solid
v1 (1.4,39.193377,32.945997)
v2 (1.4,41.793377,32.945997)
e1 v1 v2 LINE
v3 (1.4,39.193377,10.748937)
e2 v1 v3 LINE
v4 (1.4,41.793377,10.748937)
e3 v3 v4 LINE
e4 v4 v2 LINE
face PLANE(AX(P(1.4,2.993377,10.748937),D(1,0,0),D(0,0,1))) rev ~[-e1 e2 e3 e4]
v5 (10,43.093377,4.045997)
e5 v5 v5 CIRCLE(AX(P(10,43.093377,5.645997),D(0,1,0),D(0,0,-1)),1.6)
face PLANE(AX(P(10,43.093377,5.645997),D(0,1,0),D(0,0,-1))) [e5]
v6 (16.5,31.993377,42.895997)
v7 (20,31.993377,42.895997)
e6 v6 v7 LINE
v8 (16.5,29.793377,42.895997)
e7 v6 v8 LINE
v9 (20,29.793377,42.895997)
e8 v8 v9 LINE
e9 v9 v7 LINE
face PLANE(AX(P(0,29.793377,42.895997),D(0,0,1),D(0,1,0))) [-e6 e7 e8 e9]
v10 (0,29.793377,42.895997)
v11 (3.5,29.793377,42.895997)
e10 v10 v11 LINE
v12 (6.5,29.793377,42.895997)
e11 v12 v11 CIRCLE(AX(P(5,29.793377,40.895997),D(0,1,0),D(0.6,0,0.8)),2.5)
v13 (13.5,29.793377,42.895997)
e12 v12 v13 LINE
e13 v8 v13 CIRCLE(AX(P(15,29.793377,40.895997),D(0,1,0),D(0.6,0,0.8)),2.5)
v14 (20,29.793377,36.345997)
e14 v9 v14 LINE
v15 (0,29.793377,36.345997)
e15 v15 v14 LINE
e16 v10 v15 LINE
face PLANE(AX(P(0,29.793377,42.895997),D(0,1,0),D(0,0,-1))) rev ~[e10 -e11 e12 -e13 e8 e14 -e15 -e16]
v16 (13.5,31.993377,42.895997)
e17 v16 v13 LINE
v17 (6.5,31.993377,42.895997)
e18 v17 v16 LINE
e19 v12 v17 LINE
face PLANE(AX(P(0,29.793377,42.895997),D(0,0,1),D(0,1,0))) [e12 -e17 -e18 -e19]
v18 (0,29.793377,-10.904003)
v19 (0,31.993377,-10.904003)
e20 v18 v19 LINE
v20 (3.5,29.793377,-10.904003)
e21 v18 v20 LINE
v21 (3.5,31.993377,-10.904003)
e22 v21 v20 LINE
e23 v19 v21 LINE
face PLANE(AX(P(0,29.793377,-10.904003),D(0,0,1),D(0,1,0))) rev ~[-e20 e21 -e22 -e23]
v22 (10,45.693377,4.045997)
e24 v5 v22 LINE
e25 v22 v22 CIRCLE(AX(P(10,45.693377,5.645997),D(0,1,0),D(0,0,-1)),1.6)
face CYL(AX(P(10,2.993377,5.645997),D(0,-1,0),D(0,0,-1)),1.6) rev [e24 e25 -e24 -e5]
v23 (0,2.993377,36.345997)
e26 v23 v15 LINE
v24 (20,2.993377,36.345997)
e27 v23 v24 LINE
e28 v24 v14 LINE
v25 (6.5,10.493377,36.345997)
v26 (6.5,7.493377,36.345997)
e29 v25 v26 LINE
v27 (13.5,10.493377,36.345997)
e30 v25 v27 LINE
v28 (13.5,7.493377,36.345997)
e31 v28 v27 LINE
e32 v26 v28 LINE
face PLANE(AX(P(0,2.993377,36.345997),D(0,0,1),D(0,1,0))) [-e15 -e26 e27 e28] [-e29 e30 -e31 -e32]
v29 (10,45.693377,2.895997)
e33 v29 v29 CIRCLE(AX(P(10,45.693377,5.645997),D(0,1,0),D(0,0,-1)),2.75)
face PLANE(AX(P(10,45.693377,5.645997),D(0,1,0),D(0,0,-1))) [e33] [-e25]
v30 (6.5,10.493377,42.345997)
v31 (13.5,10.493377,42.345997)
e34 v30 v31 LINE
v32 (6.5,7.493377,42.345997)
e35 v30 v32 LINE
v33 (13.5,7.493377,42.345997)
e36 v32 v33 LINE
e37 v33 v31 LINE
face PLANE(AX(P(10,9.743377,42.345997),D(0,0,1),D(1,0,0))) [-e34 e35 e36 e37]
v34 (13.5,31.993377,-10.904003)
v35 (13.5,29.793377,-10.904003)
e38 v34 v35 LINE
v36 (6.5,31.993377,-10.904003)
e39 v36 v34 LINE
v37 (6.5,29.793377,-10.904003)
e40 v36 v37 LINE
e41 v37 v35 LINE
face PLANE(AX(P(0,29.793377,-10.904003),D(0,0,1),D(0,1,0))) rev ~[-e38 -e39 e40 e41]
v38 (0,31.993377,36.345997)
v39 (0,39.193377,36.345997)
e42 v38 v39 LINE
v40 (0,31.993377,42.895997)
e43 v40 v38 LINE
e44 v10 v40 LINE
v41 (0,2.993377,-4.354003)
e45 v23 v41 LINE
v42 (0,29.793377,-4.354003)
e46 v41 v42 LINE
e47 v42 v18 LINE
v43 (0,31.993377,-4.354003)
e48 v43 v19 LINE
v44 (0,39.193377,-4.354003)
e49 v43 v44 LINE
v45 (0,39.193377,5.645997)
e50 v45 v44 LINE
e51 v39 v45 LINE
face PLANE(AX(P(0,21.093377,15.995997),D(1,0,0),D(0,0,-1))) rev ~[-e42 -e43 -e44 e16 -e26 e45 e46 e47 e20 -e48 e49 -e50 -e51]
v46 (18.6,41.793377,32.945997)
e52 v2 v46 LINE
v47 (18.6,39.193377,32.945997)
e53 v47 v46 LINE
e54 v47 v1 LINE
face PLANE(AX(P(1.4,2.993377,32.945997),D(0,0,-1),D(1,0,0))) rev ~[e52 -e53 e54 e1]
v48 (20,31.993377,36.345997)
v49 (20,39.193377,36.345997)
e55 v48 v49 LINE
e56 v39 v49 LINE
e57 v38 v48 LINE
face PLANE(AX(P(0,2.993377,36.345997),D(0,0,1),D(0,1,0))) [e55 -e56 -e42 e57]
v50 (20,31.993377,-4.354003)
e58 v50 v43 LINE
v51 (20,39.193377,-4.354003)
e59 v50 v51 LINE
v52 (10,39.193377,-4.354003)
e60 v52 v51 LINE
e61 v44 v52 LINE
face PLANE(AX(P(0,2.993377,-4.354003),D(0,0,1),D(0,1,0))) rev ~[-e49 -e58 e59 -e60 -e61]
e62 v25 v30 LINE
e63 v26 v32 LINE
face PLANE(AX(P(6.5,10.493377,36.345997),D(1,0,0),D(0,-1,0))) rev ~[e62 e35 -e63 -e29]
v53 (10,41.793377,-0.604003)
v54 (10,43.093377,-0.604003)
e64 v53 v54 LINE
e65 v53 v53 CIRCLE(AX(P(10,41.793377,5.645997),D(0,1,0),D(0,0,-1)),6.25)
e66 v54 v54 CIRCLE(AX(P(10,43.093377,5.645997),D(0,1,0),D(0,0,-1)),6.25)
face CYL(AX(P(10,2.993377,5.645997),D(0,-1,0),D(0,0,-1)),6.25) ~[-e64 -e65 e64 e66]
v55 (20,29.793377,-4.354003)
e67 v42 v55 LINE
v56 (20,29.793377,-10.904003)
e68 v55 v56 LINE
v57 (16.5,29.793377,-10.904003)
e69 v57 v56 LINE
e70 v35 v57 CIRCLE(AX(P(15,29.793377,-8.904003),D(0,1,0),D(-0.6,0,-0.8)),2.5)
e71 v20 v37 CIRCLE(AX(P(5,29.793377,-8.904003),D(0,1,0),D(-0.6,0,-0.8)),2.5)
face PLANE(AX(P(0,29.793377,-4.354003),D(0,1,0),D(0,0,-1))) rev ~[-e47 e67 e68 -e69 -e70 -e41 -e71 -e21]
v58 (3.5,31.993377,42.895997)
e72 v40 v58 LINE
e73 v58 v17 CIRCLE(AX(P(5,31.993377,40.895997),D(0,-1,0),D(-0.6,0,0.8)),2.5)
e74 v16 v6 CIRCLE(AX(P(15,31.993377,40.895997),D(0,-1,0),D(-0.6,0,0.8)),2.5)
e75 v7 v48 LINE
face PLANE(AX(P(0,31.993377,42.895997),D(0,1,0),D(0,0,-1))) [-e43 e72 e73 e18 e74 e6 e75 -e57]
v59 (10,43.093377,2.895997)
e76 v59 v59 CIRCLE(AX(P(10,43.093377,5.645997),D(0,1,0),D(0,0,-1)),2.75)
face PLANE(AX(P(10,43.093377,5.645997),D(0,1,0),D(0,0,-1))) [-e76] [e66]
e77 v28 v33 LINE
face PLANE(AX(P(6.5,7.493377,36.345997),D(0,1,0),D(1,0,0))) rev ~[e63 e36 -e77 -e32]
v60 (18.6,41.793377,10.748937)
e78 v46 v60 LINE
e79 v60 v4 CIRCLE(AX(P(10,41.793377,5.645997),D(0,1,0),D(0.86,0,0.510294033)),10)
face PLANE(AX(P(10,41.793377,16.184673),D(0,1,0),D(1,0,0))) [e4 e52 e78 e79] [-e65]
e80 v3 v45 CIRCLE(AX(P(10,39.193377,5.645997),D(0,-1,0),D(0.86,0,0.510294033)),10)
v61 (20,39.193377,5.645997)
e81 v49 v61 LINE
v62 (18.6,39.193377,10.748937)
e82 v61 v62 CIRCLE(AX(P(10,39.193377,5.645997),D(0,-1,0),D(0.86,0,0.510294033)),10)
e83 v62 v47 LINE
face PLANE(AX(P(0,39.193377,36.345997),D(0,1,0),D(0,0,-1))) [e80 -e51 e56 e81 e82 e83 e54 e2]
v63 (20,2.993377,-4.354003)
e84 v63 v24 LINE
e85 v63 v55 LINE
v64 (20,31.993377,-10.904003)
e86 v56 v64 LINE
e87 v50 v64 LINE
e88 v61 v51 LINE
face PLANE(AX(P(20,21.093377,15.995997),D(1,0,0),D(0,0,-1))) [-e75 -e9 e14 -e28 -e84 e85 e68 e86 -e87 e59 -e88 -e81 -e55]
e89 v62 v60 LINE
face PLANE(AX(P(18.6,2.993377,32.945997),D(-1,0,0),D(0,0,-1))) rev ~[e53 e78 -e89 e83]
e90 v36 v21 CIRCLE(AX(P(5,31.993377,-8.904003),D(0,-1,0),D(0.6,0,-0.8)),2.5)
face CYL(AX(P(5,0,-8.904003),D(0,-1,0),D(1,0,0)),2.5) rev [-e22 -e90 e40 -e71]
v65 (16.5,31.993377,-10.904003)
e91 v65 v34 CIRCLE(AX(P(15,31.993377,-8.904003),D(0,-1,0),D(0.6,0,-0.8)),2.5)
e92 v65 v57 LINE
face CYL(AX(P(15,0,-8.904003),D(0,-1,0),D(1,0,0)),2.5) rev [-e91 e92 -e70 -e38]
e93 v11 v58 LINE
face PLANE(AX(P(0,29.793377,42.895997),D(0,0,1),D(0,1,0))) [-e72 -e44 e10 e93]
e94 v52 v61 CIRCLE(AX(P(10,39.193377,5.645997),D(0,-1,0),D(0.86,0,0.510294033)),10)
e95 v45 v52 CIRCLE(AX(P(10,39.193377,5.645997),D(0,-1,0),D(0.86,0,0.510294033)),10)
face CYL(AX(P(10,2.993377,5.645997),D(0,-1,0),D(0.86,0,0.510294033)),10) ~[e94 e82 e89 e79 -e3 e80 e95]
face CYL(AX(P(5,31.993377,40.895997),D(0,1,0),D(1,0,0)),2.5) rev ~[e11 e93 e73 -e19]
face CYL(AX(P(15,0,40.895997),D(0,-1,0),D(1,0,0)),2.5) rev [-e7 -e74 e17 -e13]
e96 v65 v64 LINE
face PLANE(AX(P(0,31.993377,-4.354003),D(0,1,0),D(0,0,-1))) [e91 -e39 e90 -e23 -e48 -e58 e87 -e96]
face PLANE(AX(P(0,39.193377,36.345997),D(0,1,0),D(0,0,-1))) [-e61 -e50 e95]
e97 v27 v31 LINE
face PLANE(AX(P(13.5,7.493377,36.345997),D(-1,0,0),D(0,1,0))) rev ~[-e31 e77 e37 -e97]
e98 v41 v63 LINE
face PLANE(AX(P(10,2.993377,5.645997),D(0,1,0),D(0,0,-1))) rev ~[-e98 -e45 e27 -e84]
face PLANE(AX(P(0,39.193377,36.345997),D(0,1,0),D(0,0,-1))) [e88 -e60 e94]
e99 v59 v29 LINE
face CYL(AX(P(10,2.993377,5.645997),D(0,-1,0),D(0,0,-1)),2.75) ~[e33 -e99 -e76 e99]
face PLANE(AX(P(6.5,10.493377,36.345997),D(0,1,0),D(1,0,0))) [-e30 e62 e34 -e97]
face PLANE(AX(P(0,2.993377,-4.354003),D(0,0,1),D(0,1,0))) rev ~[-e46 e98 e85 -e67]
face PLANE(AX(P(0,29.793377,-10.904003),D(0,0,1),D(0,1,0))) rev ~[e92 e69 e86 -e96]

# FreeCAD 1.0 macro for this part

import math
import FreeCAD as App
import Part
import Sketcher


def add_polygon(sketch, points):
    """Adds a closed chain of lines whose ends are joined by coincident constraints."""
    first, n = sketch.GeometryCount, len(points)
    for a, b in zip(points, points[1:] + points[:1]):
        sketch.addGeometry(Part.LineSegment(App.Vector(*a, 0), App.Vector(*b, 0)), False)
    for i in range(n):
        sketch.addConstraint(Sketcher.Constraint("Coincident", first + i, 2, first + (i + 1) % n, 1))

doc = App.newDocument("Part")
params = doc.addObject("Spreadsheet::Sheet", "Params")
for row, (alias, value) in enumerate([
    ("sketch1_width", "36.2 mm"),
    ("sketch1_height", "40.7 mm"),
    ("pad1_length", "20 mm"),
    ("sketch2_width", "2.2 mm"),
    ("sketch2_height", "6.55 mm"),
    ("pad2_length", "20 mm"),
    ("sketch3_radius", "10 mm"),
    ("sketch3_diameter", "12.5 mm"),
    ("sketch3_width", "17.2 mm"),
    ("pad3_length", "38.8 mm"),
    ("sketch4_diameter", "12.5 mm"),
    ("sketch4_diameter2", "5.5 mm"),
    ("sketch4_diameter3", "3.2 mm"),
    ("pad4_length", "40.1 mm"),
    ("sketch5_diameter", "5.5 mm"),
    ("sketch5_diameter2", "3.2 mm"),
    ("pad5_length", "42.7 mm"),
    ("sketch6_diameter", "5 mm"),
    ("pocket1_length", "43.9 mm"),
    ("sketch7_diameter", "5 mm"),
    ("pocket2_length", "43.9 mm"),
    ("sketch8_diameter", "5 mm"),
    ("pocket3_length", "43.9 mm"),
    ("sketch9_width", "7 mm"),
    ("sketch9_height", "3 mm"),
    ("pad6_length", "6 mm"),
], start=1):
    params.set(f"A{row}", alias)
    params.set(f"B{row}", "=" + value)
    params.setAlias(f"B{row}", alias)

body = doc.addObject("PartDesign::Body", "Body")

sketch1 = body.newObject("Sketcher::SketchObject", "Sketch")
sketch1.AttachmentSupport = (doc.getObject("YZ_Plane"), [""])
sketch1.MapMode = "FlatFace"
add_polygon(sketch1, [(39, 36), (3, 36), (3, -4), (39, -4)])
sketch1.addConstraint([
    Sketcher.Constraint("Horizontal", 0),
    Sketcher.Constraint("Vertical", 1),
    Sketcher.Constraint("Horizontal", 2),
    Sketcher.Constraint("Vertical", 3),
    Sketcher.Constraint("DistanceX", 0, 2, 0, 1, 36.2),
    Sketcher.Constraint("DistanceY", 1, 2, 1, 1, 40.7),
    Sketcher.Constraint("DistanceX", -1, 1, 0, 2, 2.993377),
    Sketcher.Constraint("DistanceY", -1, 1, 0, 2, 36.345997),
])
sketch1.setExpression("Constraints[8]", "Params.sketch1_width")
sketch1.setExpression("Constraints[9]", "Params.sketch1_height")
pad1 = body.newObject("PartDesign::Pad", "Pad")
pad1.Profile = sketch1
pad1.setExpression("Length", "Params.pad1_length")

sketch2 = body.newObject("Sketcher::SketchObject", "Sketch001")
sketch2.AttachmentSupport = (doc.getObject("YZ_Plane"), [""])
sketch2.MapMode = "FlatFace"
add_polygon(sketch2, [(32, 42.9), (29.8, 42.9), (29.8, 36.3), (32, 36.3)])
add_polygon(sketch2, [(32, -4.4), (29.8, -4.4), (29.8, -10.9), (32, -10.9)])
sketch2.addConstraint([
    Sketcher.Constraint("Horizontal", 0),
    Sketcher.Constraint("Vertical", 1),
    Sketcher.Constraint("Horizontal", 2),
    Sketcher.Constraint("Vertical", 3),
    Sketcher.Constraint("Horizontal", 4),
    Sketcher.Constraint("Vertical", 5),
    Sketcher.Constraint("Horizontal", 6),
    Sketcher.Constraint("Vertical", 7),
    Sketcher.Constraint("Vertical", 1, 2, 4, 2),
    Sketcher.Constraint("Vertical", 3, 2, 6, 2),
    Sketcher.Constraint("Equal", 3, 5),
    Sketcher.Constraint("DistanceX", 0, 2, 0, 1, 2.2),
    Sketcher.Constraint("DistanceY", 1, 2, 1, 1, 6.55),
    Sketcher.Constraint("DistanceY", 4, 2, 1, 2, 40.7),
    Sketcher.Constraint("DistanceX", -1, 1, 0, 2, 29.793377),
    Sketcher.Constraint("DistanceY", -1, 1, 0, 2, 42.895997),
])
sketch2.setExpression("Constraints[19]", "Params.sketch2_width")
sketch2.setExpression("Constraints[20]", "Params.sketch2_height")
pad2 = body.newObject("PartDesign::Pad", "Pad001")
pad2.Profile = sketch2
pad2.setExpression("Length", "Params.pad2_length")

sketch3 = body.newObject("Sketcher::SketchObject", "Sketch002")
sketch3.AttachmentSupport = (doc.getObject("XZ_Plane"), [""])
sketch3.MapMode = "FlatFace"
sketch3.AttachmentOffset = App.Placement(App.Vector(0, 0, -2.993377), App.Rotation())
sketch3.addGeometry([
    Part.LineSegment(App.Vector(1, 11, 0), App.Vector(1, 33, 0)),
    Part.LineSegment(App.Vector(1, 33, 0), App.Vector(19, 33, 0)),
    Part.LineSegment(App.Vector(19, 33, 0), App.Vector(19, 11, 0)),
    Part.ArcOfCircle(Part.Circle(App.Vector(10, 6, 0), App.Vector(0, 0, 1), 10), math.radians(149), math.radians(391)),
    Part.Circle(App.Vector(10, 6, 0), App.Vector(0, 0, 1), 6),
], False)
sketch3.addConstraint([
    Sketcher.Constraint("Coincident", 0, 2, 1, 1),
    Sketcher.Constraint("Coincident", 1, 2, 2, 1),
    Sketcher.Constraint("Coincident", 2, 2, 3, 2),
    Sketcher.Constraint("Coincident", 3, 1, 0, 1),
    Sketcher.Constraint("Vertical", 0),
    Sketcher.Constraint("Horizontal", 1),
    Sketcher.Constraint("Vertical", 2),
    Sketcher.Constraint("Coincident", 4, 3, 3, 3),
    Sketcher.Constraint("Horizontal", 2, 2, 3, 1),
    Sketcher.Constraint("Radius", 3, 10.0),
    Sketcher.Constraint("Diameter", 4, 12.5),
    Sketcher.Constraint("DistanceX", 1, 1, 1, 2, 17.2),
    Sketcher.Constraint("DistanceX", -1, 1, 3, 3, 10.0),
    Sketcher.Constraint("DistanceY", 3, 3, 0, 2, 27.3),
    Sketcher.Constraint("DistanceY", -1, 1, 3, 3, 5.645997),
])
sketch3.setExpression("Constraints[9]", "Params.sketch3_radius")
sketch3.setExpression("Constraints[10]", "Params.sketch3_diameter")
sketch3.setExpression("Constraints[11]", "Params.sketch3_width")
pad3 = body.newObject("PartDesign::Pad", "Pad002")
pad3.Profile = sketch3
pad3.setExpression("Length", "Params.pad3_length")
pad3.Reversed = True

sketch4 = body.newObject("Sketcher::SketchObject", "Sketch003")
sketch4.AttachmentSupport = (doc.getObject("XZ_Plane"), [""])
sketch4.MapMode = "FlatFace"
sketch4.AttachmentOffset = App.Placement(App.Vector(0, 0, -2.993377), App.Rotation())
sketch4.addGeometry([
    Part.Circle(App.Vector(10, 5.6, 0), App.Vector(0, 0, 1), 6.2),
    Part.Circle(App.Vector(10, 5.6, 0), App.Vector(0, 0, 1), 2.8),
    Part.Circle(App.Vector(10, 5.6, 0), App.Vector(0, 0, 1), 1.6),
], False)
sketch4.addConstraint([
    Sketcher.Constraint("Coincident", 1, 3, 0, 3),
    Sketcher.Constraint("Coincident", 2, 3, 0, 3),
    Sketcher.Constraint("Diameter", 0, 12.5),
    Sketcher.Constraint("Diameter", 1, 5.5),
    Sketcher.Constraint("Diameter", 2, 3.2),
    Sketcher.Constraint("DistanceX", -1, 1, 0, 3, 10.0),
    Sketcher.Constraint("DistanceY", -1, 1, 0, 3, 5.645997),
])
sketch4.setExpression("Constraints[2]", "Params.sketch4_diameter")
sketch4.setExpression("Constraints[3]", "Params.sketch4_diameter2")
sketch4.setExpression("Constraints[4]", "Params.sketch4_diameter3")
pad4 = body.newObject("PartDesign::Pad", "Pad003")
pad4.Profile = sketch4
pad4.setExpression("Length", "Params.pad4_length")
pad4.Reversed = True

sketch5 = body.newObject("Sketcher::SketchObject", "Sketch004")
sketch5.AttachmentSupport = (doc.getObject("XZ_Plane"), [""])
sketch5.MapMode = "FlatFace"
sketch5.AttachmentOffset = App.Placement(App.Vector(0, 0, -2.993377), App.Rotation())
sketch5.addGeometry([
    Part.Circle(App.Vector(10, 5.6, 0), App.Vector(0, 0, 1), 2.8),
    Part.Circle(App.Vector(10, 5.6, 0), App.Vector(0, 0, 1), 1.6),
], False)
sketch5.addConstraint([
    Sketcher.Constraint("Coincident", 1, 3, 0, 3),
    Sketcher.Constraint("Diameter", 0, 5.5),
    Sketcher.Constraint("Diameter", 1, 3.2),
    Sketcher.Constraint("DistanceX", -1, 1, 0, 3, 10.0),
    Sketcher.Constraint("DistanceY", -1, 1, 0, 3, 5.645997),
])
sketch5.setExpression("Constraints[1]", "Params.sketch5_diameter")
sketch5.setExpression("Constraints[2]", "Params.sketch5_diameter2")
pad5 = body.newObject("PartDesign::Pad", "Pad004")
pad5.Profile = sketch5
pad5.setExpression("Length", "Params.pad5_length")
pad5.Reversed = True

sketch6 = body.newObject("Sketcher::SketchObject", "Sketch005")
sketch6.AttachmentSupport = (doc.getObject("XZ_Plane"), [""])
sketch6.MapMode = "FlatFace"
sketch6.addGeometry(Part.Circle(App.Vector(15, 40.9, 0), App.Vector(0, 0, 1), 2.5), False)
sketch6.addConstraint([
    Sketcher.Constraint("Diameter", 0, 5.0),
    Sketcher.Constraint("DistanceX", -1, 1, 0, 3, 15.0),
    Sketcher.Constraint("DistanceY", -1, 1, 0, 3, 40.895997),
])
sketch6.setExpression("Constraints[0]", "Params.sketch6_diameter")
pocket1 = body.newObject("PartDesign::Pocket", "Pocket")
pocket1.Profile = sketch6
pocket1.setExpression("Length", "Params.pocket1_length")

sketch7 = body.newObject("Sketcher::SketchObject", "Sketch006")
sketch7.AttachmentSupport = (doc.getObject("XZ_Plane"), [""])
sketch7.MapMode = "FlatFace"
sketch7.AttachmentOffset = App.Placement(App.Vector(0, 0, -31.993377), App.Rotation())
sketch7.addGeometry(Part.Circle(App.Vector(5, 40.9, 0), App.Vector(0, 0, 1), 2.5), False)
sketch7.addConstraint([
    Sketcher.Constraint("Diameter", 0, 5.0),
    Sketcher.Constraint("DistanceX", -1, 1, 0, 3, 5.0),
    Sketcher.Constraint("DistanceY", -1, 1, 0, 3, 40.895997),
])
sketch7.setExpression("Constraints[0]", "Params.sketch7_diameter")
pocket2 = body.newObject("PartDesign::Pocket", "Pocket001")
pocket2.Profile = sketch7
pocket2.setExpression("Length", "Params.pocket2_length")
pocket2.Reversed = True

sketch8 = body.newObject("Sketcher::SketchObject", "Sketch007")
sketch8.AttachmentSupport = (doc.getObject("XZ_Plane"), [""])
sketch8.MapMode = "FlatFace"
sketch8.addGeometry([
    Part.Circle(App.Vector(5, -8.9, 0), App.Vector(0, 0, 1), 2.5),
    Part.Circle(App.Vector(15, -8.9, 0), App.Vector(0, 0, 1), 2.5),
], False)
sketch8.addConstraint([
    Sketcher.Constraint("Equal", 0, 1),
    Sketcher.Constraint("Horizontal", 0, 3, 1, 3),
    Sketcher.Constraint("Diameter", 0, 5.0),
    Sketcher.Constraint("DistanceX", -1, 1, 0, 3, 5.0),
    Sketcher.Constraint("DistanceX", -1, 1, 1, 3, 15.0),
    Sketcher.Constraint("DistanceY", 0, 3, -1, 1, 8.904003),
])
sketch8.setExpression("Constraints[2]", "Params.sketch8_diameter")
pocket3 = body.newObject("PartDesign::Pocket", "Pocket002")
pocket3.Profile = sketch8
pocket3.setExpression("Length", "Params.pocket3_length")

sketch9 = body.newObject("Sketcher::SketchObject", "Sketch008")
sketch9.AttachmentSupport = (doc.getObject("XY_Plane"), [""])
sketch9.MapMode = "FlatFace"
sketch9.AttachmentOffset = App.Placement(App.Vector(0, 0, 36.345997), App.Rotation())
add_polygon(sketch9, [(6.5, 10.5), (6.5, 7.5), (13.5, 7.5), (13.5, 10.5)])
sketch9.addConstraint([
    Sketcher.Constraint("Vertical", 0),
    Sketcher.Constraint("Horizontal", 1),
    Sketcher.Constraint("Vertical", 2),
    Sketcher.Constraint("Horizontal", 3),
    Sketcher.Constraint("DistanceX", 1, 1, 1, 2, 7.0),
    Sketcher.Constraint("DistanceY", 0, 2, 0, 1, 3.0),
    Sketcher.Constraint("DistanceX", -1, 1, 0, 2, 6.5),
    Sketcher.Constraint("DistanceY", -1, 1, 0, 2, 7.493377),
])
sketch9.setExpression("Constraints[8]", "Params.sketch9_width")
sketch9.setExpression("Constraints[9]", "Params.sketch9_height")
pad6 = body.newObject("PartDesign::Pad", "Pad005")
pad6.Profile = sketch9
pad6.setExpression("Length", "Params.pad6_length")

doc.recompute()
